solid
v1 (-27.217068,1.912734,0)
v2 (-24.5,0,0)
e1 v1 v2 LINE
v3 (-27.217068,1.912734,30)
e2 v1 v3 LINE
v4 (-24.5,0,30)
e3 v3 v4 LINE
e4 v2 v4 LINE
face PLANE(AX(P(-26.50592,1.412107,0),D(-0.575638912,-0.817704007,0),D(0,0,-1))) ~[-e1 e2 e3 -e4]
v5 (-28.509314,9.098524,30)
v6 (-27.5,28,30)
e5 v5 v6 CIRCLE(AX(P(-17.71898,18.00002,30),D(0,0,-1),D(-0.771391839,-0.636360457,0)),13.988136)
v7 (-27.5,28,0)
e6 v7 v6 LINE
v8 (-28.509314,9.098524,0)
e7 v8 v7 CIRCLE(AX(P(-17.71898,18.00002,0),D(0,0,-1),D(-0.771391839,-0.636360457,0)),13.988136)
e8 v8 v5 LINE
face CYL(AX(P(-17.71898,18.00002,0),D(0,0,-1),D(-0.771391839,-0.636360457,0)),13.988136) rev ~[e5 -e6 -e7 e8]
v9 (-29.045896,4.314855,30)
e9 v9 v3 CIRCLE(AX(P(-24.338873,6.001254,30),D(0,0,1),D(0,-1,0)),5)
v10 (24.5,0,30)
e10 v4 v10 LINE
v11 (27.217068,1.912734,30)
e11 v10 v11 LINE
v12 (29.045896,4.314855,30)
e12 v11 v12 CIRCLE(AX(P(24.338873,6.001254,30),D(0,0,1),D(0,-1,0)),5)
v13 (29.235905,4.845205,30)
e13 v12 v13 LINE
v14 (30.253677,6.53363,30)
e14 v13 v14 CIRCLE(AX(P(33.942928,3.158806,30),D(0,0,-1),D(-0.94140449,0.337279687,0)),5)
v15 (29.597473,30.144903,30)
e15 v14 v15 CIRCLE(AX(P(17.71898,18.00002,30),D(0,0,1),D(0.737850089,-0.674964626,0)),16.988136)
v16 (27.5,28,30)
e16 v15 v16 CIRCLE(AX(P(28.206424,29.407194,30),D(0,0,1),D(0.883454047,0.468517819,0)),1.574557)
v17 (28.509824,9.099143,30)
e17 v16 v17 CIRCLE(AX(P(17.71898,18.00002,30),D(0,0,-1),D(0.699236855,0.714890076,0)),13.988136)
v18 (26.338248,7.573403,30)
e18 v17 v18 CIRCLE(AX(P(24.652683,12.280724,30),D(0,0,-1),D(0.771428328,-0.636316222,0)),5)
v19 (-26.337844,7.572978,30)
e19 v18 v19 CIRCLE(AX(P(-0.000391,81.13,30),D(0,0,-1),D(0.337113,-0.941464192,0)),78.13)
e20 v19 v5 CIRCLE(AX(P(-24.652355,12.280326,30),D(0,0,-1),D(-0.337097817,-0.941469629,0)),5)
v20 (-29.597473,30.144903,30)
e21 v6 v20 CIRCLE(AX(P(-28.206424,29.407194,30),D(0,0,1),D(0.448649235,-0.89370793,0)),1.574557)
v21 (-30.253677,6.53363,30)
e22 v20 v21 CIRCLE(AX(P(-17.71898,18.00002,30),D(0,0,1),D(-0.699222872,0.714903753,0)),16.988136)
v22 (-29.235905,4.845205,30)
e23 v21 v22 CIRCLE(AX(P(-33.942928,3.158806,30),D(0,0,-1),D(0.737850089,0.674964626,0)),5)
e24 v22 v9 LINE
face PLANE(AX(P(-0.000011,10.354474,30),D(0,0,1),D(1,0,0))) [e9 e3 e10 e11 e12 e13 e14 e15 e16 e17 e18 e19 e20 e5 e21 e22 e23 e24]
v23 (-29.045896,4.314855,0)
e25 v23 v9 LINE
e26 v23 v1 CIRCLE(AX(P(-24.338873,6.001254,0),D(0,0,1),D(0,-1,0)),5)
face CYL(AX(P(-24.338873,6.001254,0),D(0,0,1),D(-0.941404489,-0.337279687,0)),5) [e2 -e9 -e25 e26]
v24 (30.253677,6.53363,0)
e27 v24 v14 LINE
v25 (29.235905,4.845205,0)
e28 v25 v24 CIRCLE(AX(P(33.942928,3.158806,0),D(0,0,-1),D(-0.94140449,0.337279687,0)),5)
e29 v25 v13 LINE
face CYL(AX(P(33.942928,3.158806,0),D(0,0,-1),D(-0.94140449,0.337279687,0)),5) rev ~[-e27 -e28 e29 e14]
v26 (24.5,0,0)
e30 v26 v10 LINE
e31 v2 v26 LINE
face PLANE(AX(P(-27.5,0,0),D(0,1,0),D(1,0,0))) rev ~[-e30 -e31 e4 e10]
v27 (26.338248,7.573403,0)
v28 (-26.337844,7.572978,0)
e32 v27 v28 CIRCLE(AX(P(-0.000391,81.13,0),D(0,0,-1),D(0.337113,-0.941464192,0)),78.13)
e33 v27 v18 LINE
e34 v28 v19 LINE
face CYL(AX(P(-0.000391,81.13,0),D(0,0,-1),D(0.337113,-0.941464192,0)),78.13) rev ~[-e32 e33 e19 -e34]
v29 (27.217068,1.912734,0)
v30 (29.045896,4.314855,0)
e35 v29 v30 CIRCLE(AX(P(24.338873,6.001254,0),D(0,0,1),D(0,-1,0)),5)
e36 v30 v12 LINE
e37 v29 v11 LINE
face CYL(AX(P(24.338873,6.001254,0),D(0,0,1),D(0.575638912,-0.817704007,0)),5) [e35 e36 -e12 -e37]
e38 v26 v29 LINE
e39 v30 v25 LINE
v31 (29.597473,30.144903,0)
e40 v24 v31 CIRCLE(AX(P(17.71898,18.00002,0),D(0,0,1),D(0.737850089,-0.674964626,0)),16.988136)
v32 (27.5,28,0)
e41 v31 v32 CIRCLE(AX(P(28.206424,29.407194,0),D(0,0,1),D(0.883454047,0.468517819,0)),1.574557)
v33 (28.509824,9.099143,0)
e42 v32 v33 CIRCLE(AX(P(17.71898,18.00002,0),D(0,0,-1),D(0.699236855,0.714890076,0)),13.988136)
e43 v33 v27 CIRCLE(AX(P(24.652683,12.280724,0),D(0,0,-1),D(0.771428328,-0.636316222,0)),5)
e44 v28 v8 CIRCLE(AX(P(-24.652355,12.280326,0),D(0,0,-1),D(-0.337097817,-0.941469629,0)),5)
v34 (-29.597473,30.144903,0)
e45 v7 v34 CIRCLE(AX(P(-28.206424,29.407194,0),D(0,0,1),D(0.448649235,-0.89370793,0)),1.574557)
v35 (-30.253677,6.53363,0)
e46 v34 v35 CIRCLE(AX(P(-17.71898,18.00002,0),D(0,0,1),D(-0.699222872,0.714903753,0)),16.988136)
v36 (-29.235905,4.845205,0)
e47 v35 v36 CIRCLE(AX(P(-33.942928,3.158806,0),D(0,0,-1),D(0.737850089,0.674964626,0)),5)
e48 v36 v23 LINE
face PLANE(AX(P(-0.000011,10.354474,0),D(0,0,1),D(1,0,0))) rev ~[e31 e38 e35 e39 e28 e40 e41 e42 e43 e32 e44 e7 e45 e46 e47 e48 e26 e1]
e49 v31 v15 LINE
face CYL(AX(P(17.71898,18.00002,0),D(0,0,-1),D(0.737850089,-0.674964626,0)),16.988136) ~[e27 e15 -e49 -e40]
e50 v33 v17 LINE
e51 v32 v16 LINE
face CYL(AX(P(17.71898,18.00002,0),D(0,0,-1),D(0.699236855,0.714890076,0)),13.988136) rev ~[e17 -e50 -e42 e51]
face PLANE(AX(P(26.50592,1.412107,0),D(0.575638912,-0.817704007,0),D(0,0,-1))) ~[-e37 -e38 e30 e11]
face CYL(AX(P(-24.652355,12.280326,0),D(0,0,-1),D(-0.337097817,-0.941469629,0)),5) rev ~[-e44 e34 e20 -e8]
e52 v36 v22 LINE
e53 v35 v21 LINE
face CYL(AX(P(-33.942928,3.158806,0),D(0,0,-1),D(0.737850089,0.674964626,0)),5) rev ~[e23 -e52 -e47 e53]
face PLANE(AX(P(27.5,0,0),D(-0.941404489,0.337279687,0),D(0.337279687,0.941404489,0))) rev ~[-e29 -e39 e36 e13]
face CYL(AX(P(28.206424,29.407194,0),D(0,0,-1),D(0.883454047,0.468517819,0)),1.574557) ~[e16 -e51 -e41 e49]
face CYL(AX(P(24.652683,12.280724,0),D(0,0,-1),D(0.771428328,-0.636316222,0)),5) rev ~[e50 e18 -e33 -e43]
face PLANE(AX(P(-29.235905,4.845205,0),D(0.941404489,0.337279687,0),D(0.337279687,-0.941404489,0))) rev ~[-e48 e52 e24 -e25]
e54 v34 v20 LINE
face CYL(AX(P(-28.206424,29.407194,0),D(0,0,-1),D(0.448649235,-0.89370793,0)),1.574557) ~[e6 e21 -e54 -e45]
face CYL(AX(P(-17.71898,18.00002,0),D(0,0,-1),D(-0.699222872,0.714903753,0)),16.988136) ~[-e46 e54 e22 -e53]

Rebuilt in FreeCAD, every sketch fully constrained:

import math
import FreeCAD as App
import Part
import Sketcher
from FreeCAD import Vector


def edges_at(feature, points):
    """Names of the edges that pass closest to the given points."""
    edges = feature.Shape.Edges
    near = lambda p: min(range(len(edges)), key=lambda i: edges[i].distToShape(Part.Vertex(*p))[0])
    return sorted({f"Edge{near(p) + 1}" for p in points})

doc = App.newDocument("Part")
body = doc.addObject("PartDesign::Body", "Body")

# Sketch on XY plane
sketch1 = body.newObject("Sketcher::SketchObject", "Sketch")
sketch1.AttachmentSupport = (doc.getObject("XY_Plane"), [""])
sketch1.MapMode = "FlatFace"
sketch1.addGeometry([
    Part.LineSegment(Vector(-29.235905, 4.845205, 0), Vector(-27.5, 0, 0)),  # 0
    Part.LineSegment(Vector(-27.5, 0, 0), Vector(27.5, 0, 0)),  # 1
    Part.LineSegment(Vector(27.5, 0, 0), Vector(29.235905, 4.845205, 0)),  # 2
    Part.ArcOfCircle(Part.Circle(Vector(33.942928, 3.158806, 0), Vector(0, 0, 1), 5), math.radians(137.548597), math.radians(160.288776)),  # 3
    Part.ArcOfCircle(Part.Circle(Vector(17.71898, 18.00002, 0), Vector(0, 0, 1), 16.988136), math.radians(-42.451403), math.radians(45.635312)),  # 4
    Part.ArcOfCircle(Part.Circle(Vector(28.206424, 29.407194, 0), Vector(0, 0, 1), 1.574557), math.radians(27.938128), math.radians(243.342947)),  # 5
    Part.ArcOfCircle(Part.Circle(Vector(17.71898, 18.00002, 0), Vector(0, 0, 1), 13.988136), math.radians(-39.517675), math.radians(45.634191)),  # 6
    Part.ArcOfCircle(Part.Circle(Vector(24.652683, 12.280724, 0), Vector(0, 0, 1), 5), math.radians(-70.29892), math.radians(-39.517675)),  # 7
    Part.ArcOfCircle(Part.Circle(Vector(-0.000391, 81.13, 0), Vector(0, 0, 1), 78.13), math.radians(-109.700156), math.radians(-70.29892)),  # 8
    Part.ArcOfCircle(Part.Circle(Vector(-24.652355, 12.280326, 0), Vector(0, 0, 1), 5), math.radians(-140.47904), math.radians(-109.700156)),  # 9
    Part.ArcOfCircle(Part.Circle(Vector(-17.71898, 18.00002, 0), Vector(0, 0, 1), 13.988136), math.radians(134.365809), math.radians(219.52096)),  # 10
    Part.ArcOfCircle(Part.Circle(Vector(-28.206424, 29.407194, 0), Vector(0, 0, 1), 1.574557), math.radians(-63.342947), math.radians(152.061872)),  # 11
    Part.ArcOfCircle(Part.Circle(Vector(-17.71898, 18.00002, 0), Vector(0, 0, 1), 16.988136), math.radians(134.364688), math.radians(222.451403)),  # 12
    Part.ArcOfCircle(Part.Circle(Vector(-33.942928, 3.158806, 0), Vector(0, 0, 1), 5), math.radians(19.711224), math.radians(42.451403)),  # 13
], False)
sketch1.addConstraint([
    Sketcher.Constraint("Coincident", 0, 2, 1, 1),
    Sketcher.Constraint("Coincident", 1, 2, 2, 1),
    Sketcher.Constraint("Tangent", 2, 2, 3, 2),
    Sketcher.Constraint("Tangent", 3, 1, 4, 1),
    Sketcher.Constraint("Coincident", 4, 2, 5, 1),
    Sketcher.Constraint("Coincident", 5, 2, 6, 2),
    Sketcher.Constraint("Tangent", 6, 1, 7, 2),
    Sketcher.Constraint("Tangent", 7, 1, 8, 2),
    Sketcher.Constraint("Tangent", 8, 1, 9, 2),
    Sketcher.Constraint("Tangent", 9, 1, 10, 2),
    Sketcher.Constraint("Coincident", 10, 1, 11, 1),
    Sketcher.Constraint("Coincident", 11, 2, 12, 1),
    Sketcher.Constraint("Tangent", 12, 2, 13, 2),
    Sketcher.Constraint("Tangent", 13, 1, 0, 1),
    Sketcher.Constraint("Horizontal", 1),
    Sketcher.Constraint("Coincident", 6, 3, 4, 3),
    Sketcher.Constraint("Coincident", 12, 3, 10, 3),
    Sketcher.Constraint("Equal", 3, 7),
    Sketcher.Constraint("Equal", 7, 9),
    Sketcher.Constraint("Equal", 6, 10),
    Sketcher.Constraint("Equal", 5, 11),
    Sketcher.Constraint("Equal", 4, 12),
    Sketcher.Constraint("Equal", 9, 13),
    Sketcher.Constraint("Symmetric", 0, 2, 1, 2, -1, 1),
    Sketcher.Constraint("Symmetric", 4, 3, 10, 3, -2),
    Sketcher.Constraint("Symmetric", 5, 3, 11, 3, -2),
    Sketcher.Constraint("Horizontal", 3, 3, 13, 3),
    Sketcher.Constraint("Vertical", 1, 2, 5, 2),
    Sketcher.Constraint("Radius", 3, 5.0),
    Sketcher.Constraint("DistanceX", 1, 1, 1, 2, 55.0),
    Sketcher.Constraint("Radius", 8, 78.13),
    Sketcher.Constraint("DistanceY", -1, 1, 5, 2, 28.0),
    Sketcher.Constraint("DistanceY", -1, 1, 8, 3, 81.13),
    Sketcher.Constraint("Radius", 4, 16.988136),
    Sketcher.Constraint("Radius", 5, 1.574557),
    Sketcher.Constraint("Radius", 6, 13.988136),
    Sketcher.Constraint("DistanceY", 3, 3, 2, 2, 1.686398),
    Sketcher.Constraint("DistanceX", -1, 1, 4, 3, 17.71898),
    Sketcher.Constraint("DistanceX", 8, 3, -1, 1, 0.000391),
    Sketcher.Constraint("DistanceY", 3, 3, 5, 3, 26.248388),
])
pad1 = body.newObject("PartDesign::Pad", "Pad")
pad1.Profile = sketch1
pad1.Length = 30
doc.recompute()

chamfer = body.newObject("PartDesign::Chamfer", "Chamfer")
chamfer.Base = (pad1, edges_at(pad1, [(-27.5, 0, 15), (27.5, 0, 15)]))
chamfer.Size = 3
doc.recompute()

fillet = body.newObject("PartDesign::Fillet", "Fillet")
fillet.Base = (chamfer, edges_at(chamfer, [(-28.512, 2.824, 15), (28.512, 2.824, 15)]))
fillet.Radius = 5

doc.recompute()
